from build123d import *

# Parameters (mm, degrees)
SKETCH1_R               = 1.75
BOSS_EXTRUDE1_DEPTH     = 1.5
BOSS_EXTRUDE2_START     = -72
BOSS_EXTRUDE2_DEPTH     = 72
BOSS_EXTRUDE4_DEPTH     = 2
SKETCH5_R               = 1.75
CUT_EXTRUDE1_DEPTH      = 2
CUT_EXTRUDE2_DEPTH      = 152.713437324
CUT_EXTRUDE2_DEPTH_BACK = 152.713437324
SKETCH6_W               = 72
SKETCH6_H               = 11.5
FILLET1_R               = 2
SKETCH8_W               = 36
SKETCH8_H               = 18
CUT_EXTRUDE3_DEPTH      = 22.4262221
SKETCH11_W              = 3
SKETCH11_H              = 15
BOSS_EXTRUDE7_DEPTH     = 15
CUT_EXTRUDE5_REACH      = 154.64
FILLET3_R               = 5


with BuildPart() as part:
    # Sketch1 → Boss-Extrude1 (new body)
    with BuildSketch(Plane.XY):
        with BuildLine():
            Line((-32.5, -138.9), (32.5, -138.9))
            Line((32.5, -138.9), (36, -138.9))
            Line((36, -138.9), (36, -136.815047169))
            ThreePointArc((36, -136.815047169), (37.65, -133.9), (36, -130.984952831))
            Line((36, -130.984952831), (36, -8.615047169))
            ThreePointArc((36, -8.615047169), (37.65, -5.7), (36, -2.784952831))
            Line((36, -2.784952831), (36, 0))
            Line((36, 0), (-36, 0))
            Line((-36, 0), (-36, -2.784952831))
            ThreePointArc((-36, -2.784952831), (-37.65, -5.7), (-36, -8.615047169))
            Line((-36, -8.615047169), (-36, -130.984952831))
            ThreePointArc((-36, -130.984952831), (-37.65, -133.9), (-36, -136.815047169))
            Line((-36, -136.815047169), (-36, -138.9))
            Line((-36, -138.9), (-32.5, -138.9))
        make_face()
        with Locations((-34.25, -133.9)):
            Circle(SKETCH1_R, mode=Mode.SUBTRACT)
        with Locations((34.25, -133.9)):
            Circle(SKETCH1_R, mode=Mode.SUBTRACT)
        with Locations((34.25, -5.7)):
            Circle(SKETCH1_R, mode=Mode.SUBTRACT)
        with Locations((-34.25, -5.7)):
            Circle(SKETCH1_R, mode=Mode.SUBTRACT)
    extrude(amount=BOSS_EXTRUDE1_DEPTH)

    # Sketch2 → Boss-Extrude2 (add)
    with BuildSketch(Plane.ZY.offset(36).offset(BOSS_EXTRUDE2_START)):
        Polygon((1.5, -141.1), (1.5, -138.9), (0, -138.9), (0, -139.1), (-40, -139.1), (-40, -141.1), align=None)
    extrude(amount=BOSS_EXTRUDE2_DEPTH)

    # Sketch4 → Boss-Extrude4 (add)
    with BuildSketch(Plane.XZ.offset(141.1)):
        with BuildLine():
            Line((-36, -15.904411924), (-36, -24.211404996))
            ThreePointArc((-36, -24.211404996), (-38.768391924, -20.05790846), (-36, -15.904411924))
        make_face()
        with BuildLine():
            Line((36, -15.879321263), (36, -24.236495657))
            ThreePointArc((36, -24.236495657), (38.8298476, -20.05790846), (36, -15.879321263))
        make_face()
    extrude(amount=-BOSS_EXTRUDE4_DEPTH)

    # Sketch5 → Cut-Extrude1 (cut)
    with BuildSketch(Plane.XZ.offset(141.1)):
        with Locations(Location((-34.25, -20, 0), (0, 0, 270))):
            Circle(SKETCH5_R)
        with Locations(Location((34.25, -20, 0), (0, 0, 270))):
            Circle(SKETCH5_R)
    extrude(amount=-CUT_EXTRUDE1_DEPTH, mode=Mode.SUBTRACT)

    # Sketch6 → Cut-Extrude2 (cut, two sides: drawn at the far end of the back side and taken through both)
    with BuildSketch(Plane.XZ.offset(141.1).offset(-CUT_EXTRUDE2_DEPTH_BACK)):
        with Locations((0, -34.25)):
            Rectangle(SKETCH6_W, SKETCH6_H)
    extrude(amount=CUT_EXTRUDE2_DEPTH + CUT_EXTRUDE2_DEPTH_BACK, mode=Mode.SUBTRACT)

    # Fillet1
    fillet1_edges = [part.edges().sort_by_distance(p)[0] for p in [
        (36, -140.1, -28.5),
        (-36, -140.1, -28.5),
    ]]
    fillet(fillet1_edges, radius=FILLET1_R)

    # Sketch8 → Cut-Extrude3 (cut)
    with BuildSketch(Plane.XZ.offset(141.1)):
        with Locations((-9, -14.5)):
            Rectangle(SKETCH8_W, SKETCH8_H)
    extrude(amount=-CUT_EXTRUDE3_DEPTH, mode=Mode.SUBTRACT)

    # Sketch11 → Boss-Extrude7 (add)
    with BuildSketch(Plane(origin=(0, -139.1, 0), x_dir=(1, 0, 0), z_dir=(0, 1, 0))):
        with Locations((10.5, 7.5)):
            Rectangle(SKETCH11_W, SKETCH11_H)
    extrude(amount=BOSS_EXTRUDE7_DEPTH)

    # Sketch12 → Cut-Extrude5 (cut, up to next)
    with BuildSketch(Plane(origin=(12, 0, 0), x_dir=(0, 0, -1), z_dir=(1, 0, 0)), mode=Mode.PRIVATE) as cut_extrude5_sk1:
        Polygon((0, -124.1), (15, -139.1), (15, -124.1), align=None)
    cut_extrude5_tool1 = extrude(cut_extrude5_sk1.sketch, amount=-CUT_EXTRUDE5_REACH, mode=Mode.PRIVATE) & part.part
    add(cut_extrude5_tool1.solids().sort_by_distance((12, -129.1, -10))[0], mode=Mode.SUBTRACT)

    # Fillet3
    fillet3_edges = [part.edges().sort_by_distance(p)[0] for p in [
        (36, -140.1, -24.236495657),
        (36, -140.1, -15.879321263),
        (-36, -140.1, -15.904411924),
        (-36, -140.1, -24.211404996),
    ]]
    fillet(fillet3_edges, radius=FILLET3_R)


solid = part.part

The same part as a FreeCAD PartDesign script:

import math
import FreeCAD as App
import Part
import Sketcher

V = App.Vector
Q = App.Units.Quantity


def edges_at(feature, points):
    """Names of the edges that pass closest to the given points."""
    edges = feature.Shape.Edges
    near = lambda p: min(range(len(edges)), key=lambda i: edges[i].distToShape(Part.Vertex(*p))[0])
    return sorted({f"Edge{near(p) + 1}" for p in points})


def add_polygon(sketch, points):
    """Adds a closed chain of lines whose ends are joined by coincident constraints."""
    first, n = sketch.GeometryCount, len(points)
    for a, b in zip(points, points[1:] + points[:1]):
        sketch.addGeometry(Part.LineSegment(App.Vector(*a, 0), App.Vector(*b, 0)), False)
    for i in range(n):
        sketch.addConstraint(Sketcher.Constraint("Coincident", first + i, 2, first + (i + 1) % n, 1))

doc = App.newDocument("Part")
body = doc.addObject("PartDesign::Body", "Body")

# Sketch on XY plane
sketch1 = doc.addObject("Sketcher::SketchObject", "Sketch")
body.addObject(sketch1)
sketch1.AttachmentSupport = (doc.XY_Plane, [""])
sketch1.MapMode = "FlatFace"
sketch1.addGeometry([
    Part.LineSegment(V(36, -138.9, 0), V(36, -136.815047, 0)),  # 0
    Part.ArcOfCircle(Part.Circle(V(34.25, -133.9, 0), V(0, 0, 1), 3.4), math.radians(-59.022202), math.radians(59.022202)),  # 1
    Part.LineSegment(V(36, -130.984953, 0), V(36, -8.615047, 0)),  # 2
    Part.ArcOfCircle(Part.Circle(V(34.25, -5.7, 0), V(0, 0, 1), 3.4), math.radians(-59.022202), math.radians(59.022202)),  # 3
    Part.LineSegment(V(36, -2.784953, 0), V(36, 0, 0)),  # 4
    Part.LineSegment(V(36, 0, 0), V(-36, 0, 0)),  # 5
    Part.LineSegment(V(-36, 0, 0), V(-36, -2.784953, 0)),  # 6
    Part.ArcOfCircle(Part.Circle(V(-34.25, -5.7, 0), V(0, 0, 1), 3.4), math.radians(120.977798), math.radians(239.022202)),  # 7
    Part.LineSegment(V(-36, -8.615047, 0), V(-36, -130.984953, 0)),  # 8
    Part.ArcOfCircle(Part.Circle(V(-34.25, -133.9, 0), V(0, 0, 1), 3.4), math.radians(120.977798), math.radians(239.022202)),  # 9
    Part.LineSegment(V(-36, -136.815047, 0), V(-36, -138.9, 0)),  # 10
    Part.LineSegment(V(-36, -138.9, 0), V(36, -138.9, 0)),  # 11
    Part.Circle(V(-34.25, -133.9, 0), V(0, 0, 1), 1.75),  # 12
    Part.Circle(V(34.25, -133.9, 0), V(0, 0, 1), 1.75),  # 13
    Part.Circle(V(-34.25, -5.7, 0), V(0, 0, 1), 1.75),  # 14
    Part.Circle(V(34.25, -5.7, 0), V(0, 0, 1), 1.75),  # 15
], False)
sketch1.addConstraint([
    Sketcher.Constraint("Coincident", 0, 2, 1, 1),
    Sketcher.Constraint("Coincident", 1, 2, 2, 1),
    Sketcher.Constraint("Coincident", 2, 2, 3, 1),
    Sketcher.Constraint("Coincident", 3, 2, 4, 1),
    Sketcher.Constraint("Coincident", 4, 2, 5, 1),
    Sketcher.Constraint("Coincident", 5, 2, 6, 1),
    Sketcher.Constraint("Coincident", 6, 2, 7, 1),
    Sketcher.Constraint("Coincident", 7, 2, 8, 1),
    Sketcher.Constraint("Coincident", 8, 2, 9, 1),
    Sketcher.Constraint("Coincident", 9, 2, 10, 1),
    Sketcher.Constraint("Coincident", 10, 2, 11, 1),
    Sketcher.Constraint("Coincident", 11, 2, 0, 1),
    Sketcher.Constraint("Vertical", 0),
    Sketcher.Constraint("Vertical", 2),
    Sketcher.Constraint("Vertical", 4),
    Sketcher.Constraint("Horizontal", 5),
    Sketcher.Constraint("Vertical", 6),
    Sketcher.Constraint("Vertical", 8),
    Sketcher.Constraint("Vertical", 10),
    Sketcher.Constraint("Horizontal", 11),
    Sketcher.Constraint("Coincident", 12, 3, 9, 3),
    Sketcher.Constraint("Coincident", 13, 3, 1, 3),
    Sketcher.Constraint("Coincident", 14, 3, 7, 3),
    Sketcher.Constraint("Coincident", 15, 3, 3, 3),
    Sketcher.Constraint("Equal", 1, 3),
    Sketcher.Constraint("Equal", 3, 7),
    Sketcher.Constraint("Equal", 7, 9),
    Sketcher.Constraint("Equal", 12, 13),
    Sketcher.Constraint("Equal", 13, 14),
    Sketcher.Constraint("Equal", 14, 15),
    Sketcher.Constraint("Symmetric", 4, 2, 5, 2, -1, 1),
    Sketcher.Constraint("Symmetric", 3, 3, 7, 3, -2),
    Sketcher.Constraint("Symmetric", 1, 3, 9, 3, -2),
    Sketcher.Constraint("Horizontal", 2, 2, 7, 2),
    Sketcher.Constraint("Horizontal", 0, 2, 9, 2),
    Sketcher.Constraint("Vertical", 1, 3, 3, 3),
    Sketcher.Constraint("Vertical", 0, 2, 1, 2),
    Sketcher.Constraint("Vertical", 2, 2, 3, 2),
    Sketcher.Constraint("Diameter", 12, Q("3.5 mm")),
    Sketcher.Constraint("Radius", 1, Q("3.4 mm")),
    Sketcher.Constraint("DistanceX", 5, 2, 5, 1, Q("72 mm")),
    Sketcher.Constraint("DistanceY", 10, 2, 9, 3, Q("5 mm")),
    Sketcher.Constraint("DistanceY", 1, 3, -1, 1, Q("133.9 mm")),
    Sketcher.Constraint("DistanceY", 3, 3, -1, 1, Q("5.7 mm")),
    Sketcher.Constraint("DistanceX", 7, 3, 3, 3, Q("68.5 mm")),
])
pad1 = doc.addObject("PartDesign::Pad", "Pad")
body.addObject(pad1)
pad1.Profile = sketch1
pad1.Length = 1.5

# Sketch on YZ plane
sketch2 = doc.addObject("Sketcher::SketchObject", "Sketch001")
body.addObject(sketch2)
sketch2.AttachmentSupport = (doc.YZ_Plane, [""])
sketch2.MapMode = "FlatFace"
sketch2.AttachmentOffset = App.Placement(V(0, 0, 36), App.Rotation())
add_polygon(sketch2, [(-141.1, 1.5), (-138.9, 1.5), (-138.9, 0), (-139.1, 0), (-139.1, -40), (-141.1, -40)])  # lines 0-5
sketch2.addConstraint([
    Sketcher.Constraint("Horizontal", 0),
    Sketcher.Constraint("Vertical", 1),
    Sketcher.Constraint("Horizontal", 2),
    Sketcher.Constraint("Vertical", 3),
    Sketcher.Constraint("Horizontal", 4),
    Sketcher.Constraint("Vertical", 5),
    Sketcher.Constraint("PointOnObject", 1, 2, -1),
    Sketcher.Constraint("DistanceX", 4, 2, 4, 1, Q("2 mm")),
    Sketcher.Constraint("DistanceY", 3, 2, 3, 1, Q("40 mm")),
    Sketcher.Constraint("DistanceX", 0, 1, 0, 2, Q("2.2 mm")),
    Sketcher.Constraint("DistanceY", 1, 2, 1, 1, Q("1.5 mm")),
    Sketcher.Constraint("DistanceX", 0, 2, -1, 1, Q("138.9 mm")),
])
pad2 = doc.addObject("PartDesign::Pad", "Pad001")
body.addObject(pad2)
pad2.Profile = sketch2
pad2.Length = 72
pad2.Reversed = True

# Sketch on XZ plane
sketch3 = doc.addObject("Sketcher::SketchObject", "Sketch002")
body.addObject(sketch3)
sketch3.AttachmentSupport = (doc.XZ_Plane, [""])
sketch3.MapMode = "FlatFace"
sketch3.AttachmentOffset = App.Placement(V(0, 0, 141.1), App.Rotation())
sketch3.addGeometry([
    Part.LineSegment(V(-36, -24.211405, 0), V(-36, -15.904412, 0)),
    Part.ArcOfCircle(Part.Circle(V(-34.268392, -20.057908, 0), V(0, 0, 1), 4.5), math.radians(112.631436), math.radians(247.368564)),
    Part.LineSegment(V(36, -15.879321, 0), V(36, -24.236496, 0)),
    Part.ArcOfCircle(Part.Circle(V(34.329848, -20.057908, 0), V(0, 0, 1), 4.5), math.radians(-68.213752), math.radians(68.213752)),
], False)
sketch3.addConstraint([
    Sketcher.Constraint("Coincident", 0, 1, 1, 2),
    Sketcher.Constraint("Coincident", 1, 1, 0, 2),
    Sketcher.Constraint("Coincident", 2, 1, 3, 2),
    Sketcher.Constraint("Coincident", 3, 1, 2, 2),
    Sketcher.Constraint("Vertical", 0),
    Sketcher.Constraint("Vertical", 2),
    Sketcher.Constraint("Equal", 1, 3),
    Sketcher.Constraint("Horizontal", 1, 3, 3, 3),
    Sketcher.Constraint("Radius", 1, Q("4.5 mm")),
    Sketcher.Constraint("DistanceX", 0, 1, -1, 1, Q("36 mm")),
    Sketcher.Constraint("DistanceX", -1, 1, 2, 1, Q("36 mm")),
    Sketcher.Constraint("DistanceY", 0, 1, 0, 2, Q("8.306993 mm")),
    Sketcher.Constraint("DistanceY", 2, 2, 2, 1, Q("8.357174 mm")),
    Sketcher.Constraint("DistanceY", 1, 3, -1, 1, Q("20.057908 mm")),
])
pad3 = doc.addObject("PartDesign::Pad", "Pad002")
body.addObject(pad3)
pad3.Profile = sketch3
pad3.Length = 2
pad3.Reversed = True

# Sketch on XZ plane
sketch4 = doc.addObject("Sketcher::SketchObject", "Sketch003")
body.addObject(sketch4)
sketch4.AttachmentSupport = (doc.XZ_Plane, [""])
sketch4.MapMode = "FlatFace"
sketch4.AttachmentOffset = App.Placement(V(0, 0, 141.1), App.Rotation())
sketch4.addGeometry([
    Part.Circle(V(-34.25, -20, 0), V(0, 0, 1), 1.75),
    Part.Circle(V(34.25, -20, 0), V(0, 0, 1), 1.75),
], False)
sketch4.addConstraint([
    Sketcher.Constraint("Equal", 0, 1),
    Sketcher.Constraint("Symmetric", 0, 3, 1, 3, -2),
    Sketcher.Constraint("Diameter", 0, Q("3.5 mm")),
    Sketcher.Constraint("DistanceY", 0, 3, -1, 1, Q("20 mm")),
    Sketcher.Constraint("DistanceX", 0, 3, 1, 3, Q("68.5 mm")),
])
pocket1 = doc.addObject("PartDesign::Pocket", "Pocket")
body.addObject(pocket1)
pocket1.Profile = sketch4
pocket1.Length = 2

# Sketch on XZ plane
sketch5 = doc.addObject("Sketcher::SketchObject", "Sketch004")
body.addObject(sketch5)
sketch5.AttachmentSupport = (doc.XZ_Plane, [""])
sketch5.MapMode = "FlatFace"
sketch5.AttachmentOffset = App.Placement(V(0, 0, 141.1), App.Rotation())
add_polygon(sketch5, [(-36, -28.5), (-36, -40), (36, -40), (36, -28.5)])  # lines 0-3
sketch5.addConstraint([
    Sketcher.Constraint("Vertical", 0),
    Sketcher.Constraint("Horizontal", 1),
    Sketcher.Constraint("Vertical", 2),
    Sketcher.Constraint("Horizontal", 3),
    Sketcher.Constraint("DistanceX", 1, 1, 1, 2, Q("72 mm")),
    Sketcher.Constraint("DistanceY", 0, 2, 0, 1, Q("11.5 mm")),
    Sketcher.Constraint("DistanceX", 0, 2, -1, 1, Q("36 mm")),
    Sketcher.Constraint("DistanceY", 0, 2, -1, 1, Q("40 mm")),
])
pocket2 = doc.addObject("PartDesign::Pocket", "Pocket001")
body.addObject(pocket2)
pocket2.Profile = sketch5
pocket2.Type = "ThroughAll"
pocket2.Midplane = True
doc.recompute()

fillet = doc.addObject("PartDesign::Fillet", "Fillet")
body.addObject(fillet)
fillet.Base = (pocket2, edges_at(pocket2, [(36, -140.1, -28.5), (-36, -140.1, -28.5)]))
fillet.Radius = 2

# Sketch on XZ plane
sketch6 = doc.addObject("Sketcher::SketchObject", "Sketch005")
body.addObject(sketch6)
sketch6.AttachmentSupport = (doc.XZ_Plane, [""])
sketch6.MapMode = "FlatFace"
sketch6.AttachmentOffset = App.Placement(V(0, 0, 141.1), App.Rotation())
add_polygon(sketch6, [(-27, -5.5), (-27, -23.5), (9, -23.5), (9, -5.5)])  # lines 0-3
sketch6.addConstraint([
    Sketcher.Constraint("Vertical", 0),
    Sketcher.Constraint("Horizontal", 1),
    Sketcher.Constraint("Vertical", 2),
    Sketcher.Constraint("Horizontal", 3),
    Sketcher.Constraint("DistanceX", 1, 1, 1, 2, Q("36 mm")),
    Sketcher.Constraint("DistanceY", 0, 2, 0, 1, Q("18 mm")),
    Sketcher.Constraint("DistanceX", 0, 2, -1, 1, Q("27 mm")),
    Sketcher.Constraint("DistanceY", 0, 2, -1, 1, Q("23.5 mm")),
])
pocket3 = doc.addObject("PartDesign::Pocket", "Pocket002")
body.addObject(pocket3)
pocket3.Profile = sketch6
pocket3.Length = 22.426222

# Sketch on XZ plane
sketch7 = doc.addObject("Sketcher::SketchObject", "Sketch006")
body.addObject(sketch7)
sketch7.AttachmentSupport = (doc.XZ_Plane, [""])
sketch7.MapMode = "FlatFace"
sketch7.AttachmentOffset = App.Placement(V(0, 0, 139.1), App.Rotation())
add_polygon(sketch7, [(9, -15), (9, 0), (12, 0), (12, -15)])  # lines 0-3
sketch7.addConstraint([
    Sketcher.Constraint("Vertical", 0),
    Sketcher.Constraint("Horizontal", 1),
    Sketcher.Constraint("Vertical", 2),
    Sketcher.Constraint("Horizontal", 3),
    Sketcher.Constraint("PointOnObject", 0, 2, -1),
    Sketcher.Constraint("DistanceX", 1, 1, 1, 2, Q("3 mm")),
    Sketcher.Constraint("DistanceY", 0, 1, 0, 2, Q("15 mm")),
    Sketcher.Constraint("DistanceX", -1, 1, 0, 2, Q("9 mm")),
])
pad4 = doc.addObject("PartDesign::Pad", "Pad003")
body.addObject(pad4)
pad4.Profile = sketch7
pad4.Length = 15
pad4.Reversed = True

# Sketch on YZ plane
sketch8 = doc.addObject("Sketcher::SketchObject", "Sketch007")
body.addObject(sketch8)
sketch8.AttachmentSupport = (doc.YZ_Plane, [""])
sketch8.MapMode = "FlatFace"
sketch8.AttachmentOffset = App.Placement(V(0, 0, 12), App.Rotation())
add_polygon(sketch8, [(-124.1, 0), (-139.1, -15), (-124.1, -15)])  # lines 0-2
sketch8.addConstraint([
    Sketcher.Constraint("Horizontal", 1),
    Sketcher.Constraint("Vertical", 2),
    Sketcher.Constraint("PointOnObject", 2, 2, -1),
    Sketcher.Constraint("Equal", 1, 2),
    Sketcher.Constraint("DistanceX", 1, 1, 1, 2, Q("15 mm")),
    Sketcher.Constraint("DistanceX", 0, 2, -1, 1, Q("139.1 mm")),
])
pocket4 = doc.addObject("PartDesign::Pocket", "Pocket003")
body.addObject(pocket4)
pocket4.Profile = sketch8
pocket4.Type = "UpToFirst"
doc.recompute()

fillet2 = doc.addObject("PartDesign::Fillet", "Fillet001")
body.addObject(fillet2)
fillet2.Base = (pocket4, edges_at(pocket4, [
    (36, -140.1, -24.236),
    (36, -140.1, -15.879),
    (-36, -140.1, -15.904),
    (-36, -140.1, -24.211),
]))
fillet2.Radius = 5

doc.recompute()
